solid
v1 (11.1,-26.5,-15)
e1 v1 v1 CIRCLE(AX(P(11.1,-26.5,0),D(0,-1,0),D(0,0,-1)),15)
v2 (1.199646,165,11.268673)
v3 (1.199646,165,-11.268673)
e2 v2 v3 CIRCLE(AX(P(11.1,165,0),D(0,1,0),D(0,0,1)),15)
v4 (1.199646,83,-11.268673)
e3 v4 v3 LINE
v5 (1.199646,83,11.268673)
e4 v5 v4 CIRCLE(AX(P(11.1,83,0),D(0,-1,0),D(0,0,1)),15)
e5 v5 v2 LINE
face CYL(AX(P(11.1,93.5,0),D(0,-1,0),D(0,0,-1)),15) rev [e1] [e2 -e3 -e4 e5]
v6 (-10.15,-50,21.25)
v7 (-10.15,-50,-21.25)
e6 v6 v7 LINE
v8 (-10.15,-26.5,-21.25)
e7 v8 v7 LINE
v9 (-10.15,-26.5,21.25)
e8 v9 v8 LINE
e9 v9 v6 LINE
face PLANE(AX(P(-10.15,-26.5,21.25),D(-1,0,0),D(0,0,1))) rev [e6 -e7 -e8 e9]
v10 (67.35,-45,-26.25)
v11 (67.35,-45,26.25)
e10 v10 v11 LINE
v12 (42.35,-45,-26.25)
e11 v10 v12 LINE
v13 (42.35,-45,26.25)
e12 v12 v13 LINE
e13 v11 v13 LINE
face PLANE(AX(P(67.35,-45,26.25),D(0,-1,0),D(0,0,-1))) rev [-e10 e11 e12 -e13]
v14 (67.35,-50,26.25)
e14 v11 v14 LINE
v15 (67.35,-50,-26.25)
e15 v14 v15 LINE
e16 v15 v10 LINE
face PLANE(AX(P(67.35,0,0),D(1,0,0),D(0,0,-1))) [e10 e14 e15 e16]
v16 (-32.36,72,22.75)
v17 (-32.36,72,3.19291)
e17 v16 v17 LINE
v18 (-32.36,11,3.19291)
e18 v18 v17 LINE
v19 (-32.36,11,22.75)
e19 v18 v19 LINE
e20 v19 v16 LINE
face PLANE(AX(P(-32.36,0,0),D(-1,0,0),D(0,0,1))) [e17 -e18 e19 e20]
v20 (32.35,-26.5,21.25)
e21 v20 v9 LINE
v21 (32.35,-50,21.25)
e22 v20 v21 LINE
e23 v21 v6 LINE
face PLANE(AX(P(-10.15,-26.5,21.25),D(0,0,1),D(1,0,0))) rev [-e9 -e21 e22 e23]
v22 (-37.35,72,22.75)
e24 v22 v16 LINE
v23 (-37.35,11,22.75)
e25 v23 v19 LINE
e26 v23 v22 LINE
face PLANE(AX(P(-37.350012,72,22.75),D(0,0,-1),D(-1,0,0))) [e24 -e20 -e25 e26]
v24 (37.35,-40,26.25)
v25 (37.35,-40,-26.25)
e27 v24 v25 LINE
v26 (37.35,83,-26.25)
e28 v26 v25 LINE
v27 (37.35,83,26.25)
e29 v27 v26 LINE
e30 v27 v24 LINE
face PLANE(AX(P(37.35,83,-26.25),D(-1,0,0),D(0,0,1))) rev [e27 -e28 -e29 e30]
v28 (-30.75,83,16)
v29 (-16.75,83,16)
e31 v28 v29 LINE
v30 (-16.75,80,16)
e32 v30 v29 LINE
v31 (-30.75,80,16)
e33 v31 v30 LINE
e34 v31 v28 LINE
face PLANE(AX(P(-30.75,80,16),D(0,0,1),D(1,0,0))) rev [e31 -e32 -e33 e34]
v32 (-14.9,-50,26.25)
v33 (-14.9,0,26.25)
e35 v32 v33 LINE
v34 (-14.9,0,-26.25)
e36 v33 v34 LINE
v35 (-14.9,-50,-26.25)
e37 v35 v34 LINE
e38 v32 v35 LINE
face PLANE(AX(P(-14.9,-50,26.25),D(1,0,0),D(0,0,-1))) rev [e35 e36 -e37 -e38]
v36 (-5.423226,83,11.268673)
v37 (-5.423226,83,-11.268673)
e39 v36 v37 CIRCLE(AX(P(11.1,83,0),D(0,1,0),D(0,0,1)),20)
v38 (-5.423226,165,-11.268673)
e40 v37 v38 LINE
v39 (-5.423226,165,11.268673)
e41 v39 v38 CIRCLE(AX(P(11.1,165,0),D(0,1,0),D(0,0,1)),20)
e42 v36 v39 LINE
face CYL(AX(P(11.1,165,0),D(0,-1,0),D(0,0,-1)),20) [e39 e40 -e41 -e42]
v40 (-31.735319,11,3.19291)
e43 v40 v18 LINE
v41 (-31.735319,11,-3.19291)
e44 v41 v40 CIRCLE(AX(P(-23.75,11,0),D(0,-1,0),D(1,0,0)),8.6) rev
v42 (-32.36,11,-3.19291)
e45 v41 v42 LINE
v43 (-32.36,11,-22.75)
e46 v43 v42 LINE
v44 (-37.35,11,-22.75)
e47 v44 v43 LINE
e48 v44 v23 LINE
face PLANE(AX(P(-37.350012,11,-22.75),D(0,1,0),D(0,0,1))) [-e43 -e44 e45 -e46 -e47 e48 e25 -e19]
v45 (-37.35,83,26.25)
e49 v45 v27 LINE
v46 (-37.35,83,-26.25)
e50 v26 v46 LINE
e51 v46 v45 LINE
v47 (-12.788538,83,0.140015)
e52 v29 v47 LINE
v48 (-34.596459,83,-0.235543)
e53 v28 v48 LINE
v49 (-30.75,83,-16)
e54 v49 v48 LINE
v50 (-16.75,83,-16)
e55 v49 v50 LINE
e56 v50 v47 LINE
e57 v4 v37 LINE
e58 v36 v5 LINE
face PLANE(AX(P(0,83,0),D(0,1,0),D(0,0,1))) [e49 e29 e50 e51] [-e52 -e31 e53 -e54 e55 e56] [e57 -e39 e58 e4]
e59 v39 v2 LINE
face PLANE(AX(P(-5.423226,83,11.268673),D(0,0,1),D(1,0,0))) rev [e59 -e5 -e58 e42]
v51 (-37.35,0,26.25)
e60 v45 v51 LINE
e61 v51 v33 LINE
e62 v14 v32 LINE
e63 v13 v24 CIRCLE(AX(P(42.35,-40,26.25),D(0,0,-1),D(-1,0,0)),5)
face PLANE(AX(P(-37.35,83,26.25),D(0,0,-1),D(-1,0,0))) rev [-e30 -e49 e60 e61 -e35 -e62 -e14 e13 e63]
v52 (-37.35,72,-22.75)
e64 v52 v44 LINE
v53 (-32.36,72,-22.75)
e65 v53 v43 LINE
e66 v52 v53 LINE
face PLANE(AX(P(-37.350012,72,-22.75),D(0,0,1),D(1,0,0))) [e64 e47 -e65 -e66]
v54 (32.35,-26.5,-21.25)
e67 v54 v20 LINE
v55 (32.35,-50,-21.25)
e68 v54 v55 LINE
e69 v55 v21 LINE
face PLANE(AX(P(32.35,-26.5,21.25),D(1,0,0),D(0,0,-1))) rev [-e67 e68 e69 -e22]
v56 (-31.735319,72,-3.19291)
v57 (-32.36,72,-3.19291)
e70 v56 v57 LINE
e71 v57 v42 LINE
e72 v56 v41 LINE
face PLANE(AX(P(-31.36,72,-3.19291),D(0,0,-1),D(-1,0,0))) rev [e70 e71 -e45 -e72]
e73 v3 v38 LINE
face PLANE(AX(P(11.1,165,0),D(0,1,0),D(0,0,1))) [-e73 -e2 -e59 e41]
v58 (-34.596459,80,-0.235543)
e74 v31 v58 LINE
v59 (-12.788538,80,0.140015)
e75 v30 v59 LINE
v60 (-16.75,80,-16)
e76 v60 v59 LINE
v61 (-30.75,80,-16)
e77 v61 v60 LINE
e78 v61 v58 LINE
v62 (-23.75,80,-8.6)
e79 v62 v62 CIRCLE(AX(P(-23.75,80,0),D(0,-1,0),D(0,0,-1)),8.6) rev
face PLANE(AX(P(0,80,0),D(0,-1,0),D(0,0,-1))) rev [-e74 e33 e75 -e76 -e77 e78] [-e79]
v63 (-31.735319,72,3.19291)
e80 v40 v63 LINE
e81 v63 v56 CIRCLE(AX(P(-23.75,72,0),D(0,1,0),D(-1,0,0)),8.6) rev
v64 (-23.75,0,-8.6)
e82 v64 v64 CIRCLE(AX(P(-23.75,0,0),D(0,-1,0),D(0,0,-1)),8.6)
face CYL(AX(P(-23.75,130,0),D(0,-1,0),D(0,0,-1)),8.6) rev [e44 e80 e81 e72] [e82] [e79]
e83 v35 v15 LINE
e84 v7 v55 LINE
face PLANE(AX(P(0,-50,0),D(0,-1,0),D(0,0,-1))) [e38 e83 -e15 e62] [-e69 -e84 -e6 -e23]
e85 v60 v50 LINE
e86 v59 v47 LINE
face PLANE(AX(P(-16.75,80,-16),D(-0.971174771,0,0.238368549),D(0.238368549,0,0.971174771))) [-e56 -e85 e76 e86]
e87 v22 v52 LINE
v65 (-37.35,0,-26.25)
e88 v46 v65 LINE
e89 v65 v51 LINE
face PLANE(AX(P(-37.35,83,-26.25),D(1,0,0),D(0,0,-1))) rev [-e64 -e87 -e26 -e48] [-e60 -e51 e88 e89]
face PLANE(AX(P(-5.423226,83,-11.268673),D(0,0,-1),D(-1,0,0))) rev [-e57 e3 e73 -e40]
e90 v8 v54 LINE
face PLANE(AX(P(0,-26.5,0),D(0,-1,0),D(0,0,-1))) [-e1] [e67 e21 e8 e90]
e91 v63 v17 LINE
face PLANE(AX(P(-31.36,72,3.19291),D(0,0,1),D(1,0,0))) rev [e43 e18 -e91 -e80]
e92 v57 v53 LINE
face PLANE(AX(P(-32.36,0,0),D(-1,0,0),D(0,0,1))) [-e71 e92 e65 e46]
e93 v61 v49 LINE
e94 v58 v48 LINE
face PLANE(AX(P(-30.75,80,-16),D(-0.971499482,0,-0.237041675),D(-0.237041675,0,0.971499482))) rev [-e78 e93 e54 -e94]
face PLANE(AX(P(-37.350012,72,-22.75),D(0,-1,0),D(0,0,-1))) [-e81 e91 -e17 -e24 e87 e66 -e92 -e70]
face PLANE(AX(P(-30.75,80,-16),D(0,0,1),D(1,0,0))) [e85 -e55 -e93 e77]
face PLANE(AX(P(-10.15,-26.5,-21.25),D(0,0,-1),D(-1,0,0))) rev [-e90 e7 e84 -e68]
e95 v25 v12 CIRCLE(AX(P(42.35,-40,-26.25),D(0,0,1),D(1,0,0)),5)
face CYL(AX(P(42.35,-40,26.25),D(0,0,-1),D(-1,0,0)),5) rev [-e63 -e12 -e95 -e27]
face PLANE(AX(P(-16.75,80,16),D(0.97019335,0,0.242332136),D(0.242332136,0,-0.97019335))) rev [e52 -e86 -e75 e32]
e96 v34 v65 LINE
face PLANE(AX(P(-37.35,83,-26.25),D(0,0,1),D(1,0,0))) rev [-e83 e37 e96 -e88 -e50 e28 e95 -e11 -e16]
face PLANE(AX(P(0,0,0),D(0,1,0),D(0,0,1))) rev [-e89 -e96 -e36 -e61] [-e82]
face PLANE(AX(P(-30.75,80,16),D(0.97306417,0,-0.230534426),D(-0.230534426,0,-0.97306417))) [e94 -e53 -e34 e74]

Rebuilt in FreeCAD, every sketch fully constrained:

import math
import FreeCAD as App
import Part
import Sketcher

V = App.Vector


def edges_at(feature, points):
    """Names of the edges that pass closest to the given points."""
    edges = feature.Shape.Edges
    near = lambda p: min(range(len(edges)), key=lambda i: edges[i].distToShape(Part.Vertex(*p))[0])
    return sorted({f"Edge{near(p) + 1}" for p in points})


def add_polygon(sketch, points):
    """Adds a closed chain of lines whose ends are joined by coincident constraints."""
    first, n = sketch.GeometryCount, len(points)
    for a, b in zip(points, points[1:] + points[:1]):
        sketch.addGeometry(Part.LineSegment(App.Vector(*a, 0), App.Vector(*b, 0)), False)
    for i in range(n):
        sketch.addConstraint(Sketcher.Constraint("Coincident", first + i, 2, first + (i + 1) % n, 1))

doc = App.newDocument("Part")
body = doc.addObject("PartDesign::Body", "Body")

# Sketch on XZ plane
sketch1 = body.newObject("Sketcher::SketchObject", "Sketch")
sketch1.AttachmentSupport = (doc.getObject("XZ_Plane"), [""])
sketch1.MapMode = "FlatFace"
add_polygon(sketch1, [(-37, -26), (-37, 26), (37, 26), (37, -26)])  # lines 0-3
sketch1.addConstraint(Sketcher.Constraint("Vertical", 0))
sketch1.addConstraint(Sketcher.Constraint("Horizontal", 1))
sketch1.addConstraint(Sketcher.Constraint("Vertical", 2))
sketch1.addConstraint(Sketcher.Constraint("Horizontal", 3))
sketch1.addConstraint(Sketcher.Constraint("Symmetric", 0, 2, 2, 2, -1, 1))
sketch1.addConstraint(Sketcher.Constraint("DistanceX", 1, 1, 1, 2, 74.7))
sketch1.addConstraint(Sketcher.Constraint("DistanceY", 0, 1, 0, 2, 52.5))
pad1 = body.newObject("PartDesign::Pad", "Pad")
pad1.Profile = sketch1
pad1.Length = 83
pad1.Reversed = True

# Sketch on XZ plane
sketch2 = body.newObject("Sketcher::SketchObject", "Sketch001")
sketch2.AttachmentSupport = (doc.getObject("XZ_Plane"), [""])
sketch2.MapMode = "FlatFace"
add_polygon(sketch2, [(-10, 21), (-10, -21), (32, -21), (32, 21)])  # lines 0-3
sketch2.addConstraint(Sketcher.Constraint("Vertical", 0))
sketch2.addConstraint(Sketcher.Constraint("Horizontal", 1))
sketch2.addConstraint(Sketcher.Constraint("Vertical", 2))
sketch2.addConstraint(Sketcher.Constraint("Horizontal", 3))
sketch2.addConstraint(Sketcher.Constraint("Equal", 3, 0))
sketch2.addConstraint(Sketcher.Constraint("DistanceX", 1, 1, 1, 2, 42.5))
sketch2.addConstraint(Sketcher.Constraint("DistanceX", 0, 2, -1, 1, 10.15))
sketch2.addConstraint(Sketcher.Constraint("DistanceY", 0, 2, -1, 1, 21.25))
pocket1 = body.newObject("PartDesign::Pocket", "Pocket")
pocket1.Profile = sketch2
pocket1.Length = 24

# Sketch on XZ plane
sketch3 = body.newObject("Sketcher::SketchObject", "Sketch002")
sketch3.AttachmentSupport = (doc.getObject("XZ_Plane"), [""])
sketch3.MapMode = "FlatFace"
sketch3.addGeometry(Part.Circle(V(-24, 0, 0), V(0, 0, 1), 9), False)
sketch3.addConstraint(Sketcher.Constraint("PointOnObject", 0, 3, -1))
sketch3.addConstraint(Sketcher.Constraint("Diameter", 0, 17.2))
sketch3.addConstraint(Sketcher.Constraint("DistanceX", 0, 3, -1, 1, 23.75))
pocket2 = body.newObject("PartDesign::Pocket", "Pocket001")
pocket2.Profile = sketch3
pocket2.Length = 130

# Sketch on YZ plane
sketch4 = body.newObject("Sketcher::SketchObject", "Sketch003")
sketch4.AttachmentSupport = (doc.getObject("YZ_Plane"), [""])
sketch4.MapMode = "FlatFace"
sketch4.AttachmentOffset = App.Placement(V(0, 0, -37.35), App.Rotation())
add_polygon(sketch4, [(72, -23), (11, -23), (11, 23), (72, 23)])  # lines 0-3
sketch4.addConstraint(Sketcher.Constraint("Horizontal", 0))
sketch4.addConstraint(Sketcher.Constraint("Vertical", 1))
sketch4.addConstraint(Sketcher.Constraint("Horizontal", 2))
sketch4.addConstraint(Sketcher.Constraint("Vertical", 3))
sketch4.addConstraint(Sketcher.Constraint("DistanceX", 0, 2, 0, 1, 61.0))
sketch4.addConstraint(Sketcher.Constraint("DistanceY", 1, 1, 1, 2, 45.5))
sketch4.addConstraint(Sketcher.Constraint("DistanceX", -1, 1, 0, 2, 11.0))
sketch4.addConstraint(Sketcher.Constraint("DistanceY", 0, 2, -1, 1, 22.75))
pocket3 = body.newObject("PartDesign::Pocket", "Pocket002")
pocket3.Profile = sketch4
pocket3.Type = "TwoLengths"
pocket3.Length = 115.70899
pocket3.Length2 = 4.99

# Sketch on YZ plane
sketch5 = body.newObject("Sketcher::SketchObject", "Sketch004")
sketch5.AttachmentSupport = (doc.getObject("YZ_Plane"), [""])
sketch5.MapMode = "FlatFace"
sketch5.AttachmentOffset = App.Placement(V(0, 0, -32.36), App.Rotation())
add_polygon(sketch5, [(72, -3), (11, -3), (11, 3), (72, 3)])  # lines 0-3
sketch5.addConstraint(Sketcher.Constraint("Horizontal", 0))
sketch5.addConstraint(Sketcher.Constraint("Vertical", 1))
sketch5.addConstraint(Sketcher.Constraint("Horizontal", 2))
sketch5.addConstraint(Sketcher.Constraint("Vertical", 3))
sketch5.addConstraint(Sketcher.Constraint("DistanceX", 0, 2, 0, 1, 61.0))
sketch5.addConstraint(Sketcher.Constraint("DistanceX", -1, 1, 0, 2, 11.0))
sketch5.addConstraint(Sketcher.Constraint("DistanceY", 1, 1, 1, 2, 6.38582))
sketch5.addConstraint(Sketcher.Constraint("DistanceY", 0, 2, -1, 1, 3.19291))
pocket4 = body.newObject("PartDesign::Pocket", "Pocket003")
pocket4.Profile = sketch5
pocket4.Length = 1
pocket4.Reversed = True

# Sketch on XZ plane
sketch6 = body.newObject("Sketcher::SketchObject", "Sketch005")
sketch6.AttachmentSupport = (doc.getObject("XZ_Plane"), [""])
sketch6.MapMode = "FlatFace"
add_polygon(sketch6, [(-10, 21), (-10, -21), (32, -21), (32, 21)])  # lines 0-3
sketch6.addConstraint(Sketcher.Constraint("Vertical", 0))
sketch6.addConstraint(Sketcher.Constraint("Horizontal", 1))
sketch6.addConstraint(Sketcher.Constraint("Vertical", 2))
sketch6.addConstraint(Sketcher.Constraint("Horizontal", 3))
sketch6.addConstraint(Sketcher.Constraint("Equal", 3, 0))
sketch6.addConstraint(Sketcher.Constraint("DistanceX", 1, 1, 1, 2, 42.5))
sketch6.addConstraint(Sketcher.Constraint("DistanceX", 0, 2, -1, 1, 10.15))
sketch6.addConstraint(Sketcher.Constraint("DistanceY", 0, 2, -1, 1, 21.25))
pad2 = body.newObject("PartDesign::Pad", "Pad001")
pad2.Profile = sketch6
pad2.Length = 31
pad2.Reversed = True

# Sketch on XZ plane
sketch7 = body.newObject("Sketcher::SketchObject", "Sketch006")
sketch7.AttachmentSupport = (doc.getObject("XZ_Plane"), [""])
sketch7.MapMode = "FlatFace"
add_polygon(sketch7, [(-15, 26), (-15, -26), (37, -26), (37, 26)])  # lines 0-3
sketch7.addConstraint(Sketcher.Constraint("Vertical", 0))
sketch7.addConstraint(Sketcher.Constraint("Horizontal", 1))
sketch7.addConstraint(Sketcher.Constraint("Vertical", 2))
sketch7.addConstraint(Sketcher.Constraint("Horizontal", 3))
sketch7.addConstraint(Sketcher.Constraint("DistanceY", 0, 2, 0, 1, 52.5))
sketch7.addConstraint(Sketcher.Constraint("DistanceX", 1, 1, 1, 2, 52.25))
sketch7.addConstraint(Sketcher.Constraint("DistanceX", 0, 2, -1, 1, 14.9))
sketch7.addConstraint(Sketcher.Constraint("DistanceY", 0, 2, -1, 1, 26.25))
pad3 = body.newObject("PartDesign::Pad", "Pad002")
pad3.Profile = sketch7
pad3.Length = 50

# Sketch on XZ plane
sketch8 = body.newObject("Sketcher::SketchObject", "Sketch007")
sketch8.AttachmentSupport = (doc.getObject("XZ_Plane"), [""])
sketch8.MapMode = "FlatFace"
sketch8.AttachmentOffset = App.Placement(V(0, 0, 50), App.Rotation())
add_polygon(sketch8, [(-10, 21), (-10, -21), (32, -21), (32, 21)])  # lines 0-3
sketch8.addConstraint(Sketcher.Constraint("Vertical", 0))
sketch8.addConstraint(Sketcher.Constraint("Horizontal", 1))
sketch8.addConstraint(Sketcher.Constraint("Vertical", 2))
sketch8.addConstraint(Sketcher.Constraint("Horizontal", 3))
sketch8.addConstraint(Sketcher.Constraint("Equal", 3, 0))
sketch8.addConstraint(Sketcher.Constraint("DistanceX", 1, 1, 1, 2, 42.5))
sketch8.addConstraint(Sketcher.Constraint("DistanceX", 0, 2, -1, 1, 10.15))
sketch8.addConstraint(Sketcher.Constraint("DistanceY", 0, 2, -1, 1, 21.25))
pocket5 = body.newObject("PartDesign::Pocket", "Pocket004")
pocket5.Profile = sketch8
pocket5.Length = 23.5

# Sketch on YZ plane
sketch9 = body.newObject("Sketcher::SketchObject", "Sketch008")
sketch9.AttachmentSupport = (doc.getObject("YZ_Plane"), [""])
sketch9.MapMode = "FlatFace"
sketch9.AttachmentOffset = App.Placement(V(0, 0, 37.35), App.Rotation())
add_polygon(sketch9, [(-45, 26), (-50, 26), (-50, -26), (-45, -26)])  # lines 0-3
sketch9.addConstraint(Sketcher.Constraint("Horizontal", 0))
sketch9.addConstraint(Sketcher.Constraint("Vertical", 1))
sketch9.addConstraint(Sketcher.Constraint("Horizontal", 2))
sketch9.addConstraint(Sketcher.Constraint("Vertical", 3))
sketch9.addConstraint(Sketcher.Constraint("DistanceX", 0, 2, 0, 1, 5.0))
sketch9.addConstraint(Sketcher.Constraint("DistanceY", 1, 2, 1, 1, 52.5))
sketch9.addConstraint(Sketcher.Constraint("DistanceX", 0, 2, -1, 1, 50.0))
sketch9.addConstraint(Sketcher.Constraint("DistanceY", -1, 1, 0, 2, 26.25))
pad4 = body.newObject("PartDesign::Pad", "Pad003")
pad4.Profile = sketch9
pad4.Length = 30
doc.recompute()

fillet = body.newObject("PartDesign::Fillet", "Fillet")
fillet.Base = (pad4, edges_at(pad4, [(37.35, -45, 0)]))
fillet.Radius = 5

# Sketch on XZ plane
sketch10 = body.newObject("Sketcher::SketchObject", "Sketch009")
sketch10.AttachmentSupport = (doc.getObject("XZ_Plane"), [""])
sketch10.MapMode = "FlatFace"
sketch10.AttachmentOffset = App.Placement(V(0, 0, 26.5), App.Rotation())
sketch10.addGeometry(Part.Circle(V(11, 0, 0), V(0, 0, 1), 15), False)
sketch10.addConstraint(Sketcher.Constraint("PointOnObject", 0, 3, -1))
sketch10.addConstraint(Sketcher.Constraint("Diameter", 0, 30.0))
sketch10.addConstraint(Sketcher.Constraint("DistanceX", -1, 1, 0, 3, 11.1))
pocket6 = body.newObject("PartDesign::Pocket", "Pocket005")
pocket6.Profile = sketch10
pocket6.Length = 120

# Sketch on XZ plane
sketch11 = body.newObject("Sketcher::SketchObject", "Sketch010")
sketch11.AttachmentSupport = (doc.getObject("XZ_Plane"), [""])
sketch11.MapMode = "FlatFace"
sketch11.AttachmentOffset = App.Placement(V(0, 0, -83), App.Rotation())
add_polygon(sketch11, [(-13, 0), (-17, -16), (-31, -16), (-35, 0), (-31, 16), (-17, 16)])  # lines 0-5
sketch11.addConstraint(Sketcher.Constraint("Horizontal", 1))
sketch11.addConstraint(Sketcher.Constraint("Horizontal", 4))
sketch11.addConstraint(Sketcher.Constraint("Symmetric", 1, 2, 3, 2, -1))
sketch11.addConstraint(Sketcher.Constraint("Vertical", 0, 2, 4, 2))
sketch11.addConstraint(Sketcher.Constraint("DistanceX", 1, 2, 1, 1, 14.0))
sketch11.addConstraint(Sketcher.Constraint("DistanceY", 0, 2, -1, 1, 16.0))
sketch11.addConstraint(Sketcher.Constraint("DistanceX", 0, 2, -1, 1, 16.75))
sketch11.addConstraint(Sketcher.Constraint("Distance", 5, 16.347242))
sketch11.addConstraint(Sketcher.Constraint("DistanceX", 2, 2, -1, 1, 34.596459))
sketch11.addConstraint(Sketcher.Constraint("DistanceX", 5, 2, -1, 1, 12.788538))
sketch11.addConstraint(Sketcher.Constraint("DistanceY", 2, 2, 5, 2, 0.375558))
pocket7 = body.newObject("PartDesign::Pocket", "Pocket006")
pocket7.Profile = sketch11
pocket7.Length = 3
pocket7.Reversed = True

# Sketch on XZ plane
sketch12 = body.newObject("Sketcher::SketchObject", "Sketch011")
sketch12.AttachmentSupport = (doc.getObject("XZ_Plane"), [""])
sketch12.MapMode = "FlatFace"
sketch12.AttachmentOffset = App.Placement(V(0, 0, -83), App.Rotation())
sketch12.addGeometry(Part.Circle(V(11, 0, 0), V(0, 0, 1), 20), False)
sketch12.addGeometry(Part.Circle(V(11, 0, 0), V(0, 0, 1), 15), False)
sketch12.addConstraint(Sketcher.Constraint("Coincident", 1, 3, 0, 3))
sketch12.addConstraint(Sketcher.Constraint("PointOnObject", 0, 3, -1))
sketch12.addConstraint(Sketcher.Constraint("Diameter", 0, 40.0))
sketch12.addConstraint(Sketcher.Constraint("Diameter", 1, 30.0))
sketch12.addConstraint(Sketcher.Constraint("DistanceX", -1, 1, 0, 3, 11.1))
pad5 = body.newObject("PartDesign::Pad", "Pad004")
pad5.Profile = sketch12
pad5.Length = 82
pad5.Reversed = True

# Sketch on XZ plane
sketch13 = body.newObject("Sketcher::SketchObject", "Sketch012")
sketch13.AttachmentSupport = (doc.getObject("XZ_Plane"), [""])
sketch13.MapMode = "FlatFace"
sketch13.AttachmentOffset = App.Placement(V(0, 0, -83), App.Rotation())
sketch13.addGeometry(Part.LineSegment(V(1, -11, 0), V(-5, -11, 0)), False)
sketch13.addGeometry(Part.ArcOfCircle(Part.Circle(V(11, 0, 0), V(0, 0, 1), 20), math.radians(146), math.radians(214)), False)
sketch13.addGeometry(Part.LineSegment(V(-5, 11, 0), V(1, 11, 0)), False)
sketch13.addGeometry(Part.ArcOfCircle(Part.Circle(V(11, 0, 0), V(0, 0, 1), 15), math.radians(131), math.radians(229)), False)
sketch13.addConstraint(Sketcher.Constraint("Coincident", 0, 2, 1, 2))
sketch13.addConstraint(Sketcher.Constraint("Coincident", 1, 1, 2, 1))
sketch13.addConstraint(Sketcher.Constraint("Coincident", 2, 2, 3, 1))
sketch13.addConstraint(Sketcher.Constraint("Coincident", 3, 2, 0, 1))
sketch13.addConstraint(Sketcher.Constraint("Horizontal", 0))
sketch13.addConstraint(Sketcher.Constraint("Horizontal", 2))
sketch13.addConstraint(Sketcher.Constraint("Coincident", 3, 3, 1, 3))
sketch13.addConstraint(Sketcher.Constraint("Symmetric", 0, 2, 1, 1, -1))
sketch13.addConstraint(Sketcher.Constraint("Radius", 1, 20.0))
sketch13.addConstraint(Sketcher.Constraint("Radius", 3, 15.0))
sketch13.addConstraint(Sketcher.Constraint("DistanceX", -1, 1, 1, 3, 11.1))
sketch13.addConstraint(Sketcher.Constraint("DistanceX", 0, 2, 0, 1, 6.622872))
pocket8 = body.newObject("PartDesign::Pocket", "Pocket007")
pocket8.Profile = sketch13
pocket8.Length = 82

doc.recompute()
